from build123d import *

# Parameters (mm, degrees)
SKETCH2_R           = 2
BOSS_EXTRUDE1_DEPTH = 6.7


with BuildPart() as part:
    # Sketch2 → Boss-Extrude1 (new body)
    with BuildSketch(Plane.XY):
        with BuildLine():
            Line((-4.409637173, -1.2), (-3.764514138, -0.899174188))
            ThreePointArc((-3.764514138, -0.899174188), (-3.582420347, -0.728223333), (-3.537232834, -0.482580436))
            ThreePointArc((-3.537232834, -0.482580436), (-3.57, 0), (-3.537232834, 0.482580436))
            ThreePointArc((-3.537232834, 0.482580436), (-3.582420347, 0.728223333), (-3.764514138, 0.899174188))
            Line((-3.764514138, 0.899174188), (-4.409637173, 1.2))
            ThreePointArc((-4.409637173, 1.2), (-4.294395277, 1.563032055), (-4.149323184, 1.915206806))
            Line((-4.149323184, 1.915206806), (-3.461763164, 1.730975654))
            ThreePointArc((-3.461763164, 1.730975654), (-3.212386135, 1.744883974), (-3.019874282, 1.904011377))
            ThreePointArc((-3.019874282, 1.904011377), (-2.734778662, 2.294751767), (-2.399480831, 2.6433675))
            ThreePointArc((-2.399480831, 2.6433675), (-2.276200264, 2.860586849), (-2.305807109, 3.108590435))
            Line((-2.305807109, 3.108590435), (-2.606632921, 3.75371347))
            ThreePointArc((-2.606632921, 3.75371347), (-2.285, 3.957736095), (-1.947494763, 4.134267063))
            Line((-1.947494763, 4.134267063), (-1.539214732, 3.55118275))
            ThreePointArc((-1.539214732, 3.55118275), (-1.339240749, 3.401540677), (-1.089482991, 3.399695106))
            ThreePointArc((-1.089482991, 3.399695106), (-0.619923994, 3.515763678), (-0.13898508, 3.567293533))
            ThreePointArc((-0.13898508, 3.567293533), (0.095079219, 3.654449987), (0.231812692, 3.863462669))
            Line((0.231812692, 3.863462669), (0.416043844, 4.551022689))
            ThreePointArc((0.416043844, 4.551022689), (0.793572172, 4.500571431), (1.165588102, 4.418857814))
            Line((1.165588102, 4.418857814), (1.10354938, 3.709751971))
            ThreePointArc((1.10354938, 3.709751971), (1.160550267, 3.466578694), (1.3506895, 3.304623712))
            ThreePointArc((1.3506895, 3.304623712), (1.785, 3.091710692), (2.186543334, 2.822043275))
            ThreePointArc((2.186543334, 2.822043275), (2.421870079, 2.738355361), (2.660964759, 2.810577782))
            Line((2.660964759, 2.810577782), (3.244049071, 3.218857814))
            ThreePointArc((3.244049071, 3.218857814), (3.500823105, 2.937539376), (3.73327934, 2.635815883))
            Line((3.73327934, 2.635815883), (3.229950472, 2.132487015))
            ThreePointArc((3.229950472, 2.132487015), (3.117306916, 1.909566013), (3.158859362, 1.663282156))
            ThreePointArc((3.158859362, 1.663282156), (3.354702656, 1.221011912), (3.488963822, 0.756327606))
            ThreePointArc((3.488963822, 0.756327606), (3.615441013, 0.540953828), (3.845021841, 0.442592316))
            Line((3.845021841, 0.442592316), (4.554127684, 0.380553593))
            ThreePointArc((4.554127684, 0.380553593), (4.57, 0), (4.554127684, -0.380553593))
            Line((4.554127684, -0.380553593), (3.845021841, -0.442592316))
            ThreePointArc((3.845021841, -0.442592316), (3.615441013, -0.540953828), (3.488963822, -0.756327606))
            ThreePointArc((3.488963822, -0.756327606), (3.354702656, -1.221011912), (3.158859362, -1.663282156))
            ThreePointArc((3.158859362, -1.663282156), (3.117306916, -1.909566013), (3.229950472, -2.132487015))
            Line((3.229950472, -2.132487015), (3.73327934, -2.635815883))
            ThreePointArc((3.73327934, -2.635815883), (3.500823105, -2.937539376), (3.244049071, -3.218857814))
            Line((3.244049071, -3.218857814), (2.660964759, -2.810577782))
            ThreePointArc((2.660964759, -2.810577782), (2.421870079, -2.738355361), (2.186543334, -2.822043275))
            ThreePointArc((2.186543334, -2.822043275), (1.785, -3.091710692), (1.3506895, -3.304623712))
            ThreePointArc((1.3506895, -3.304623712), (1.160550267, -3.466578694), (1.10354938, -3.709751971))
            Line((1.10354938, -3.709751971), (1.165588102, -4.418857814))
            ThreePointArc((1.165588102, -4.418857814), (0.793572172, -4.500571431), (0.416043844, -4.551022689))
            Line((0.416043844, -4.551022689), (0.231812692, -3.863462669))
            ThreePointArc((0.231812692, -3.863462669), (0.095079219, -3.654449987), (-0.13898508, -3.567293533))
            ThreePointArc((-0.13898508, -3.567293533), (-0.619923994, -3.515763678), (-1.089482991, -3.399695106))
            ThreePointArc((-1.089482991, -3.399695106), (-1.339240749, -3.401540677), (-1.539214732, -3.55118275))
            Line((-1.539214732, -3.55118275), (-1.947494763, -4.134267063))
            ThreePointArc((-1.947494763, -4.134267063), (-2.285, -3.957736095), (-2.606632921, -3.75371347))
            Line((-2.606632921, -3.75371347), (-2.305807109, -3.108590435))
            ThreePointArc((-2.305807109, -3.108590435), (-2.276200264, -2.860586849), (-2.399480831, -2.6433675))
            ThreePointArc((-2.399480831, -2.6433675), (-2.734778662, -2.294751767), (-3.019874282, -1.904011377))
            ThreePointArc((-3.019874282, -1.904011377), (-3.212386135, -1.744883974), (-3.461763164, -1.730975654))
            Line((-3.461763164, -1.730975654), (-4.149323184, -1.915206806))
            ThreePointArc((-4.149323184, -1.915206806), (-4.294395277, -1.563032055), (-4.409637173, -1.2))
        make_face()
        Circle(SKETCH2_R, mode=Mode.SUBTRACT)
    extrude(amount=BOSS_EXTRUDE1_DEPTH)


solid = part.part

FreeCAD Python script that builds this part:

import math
import FreeCAD as App
import Part
import Sketcher
Q = App.Units.Quantity

doc = App.newDocument("Part")
body = doc.addObject("PartDesign::Body", "Body")

sketch1 = doc.addObject("Sketcher::SketchObject", "Sketch")
body.addObject(sketch1)
sketch1.AttachmentSupport = (doc.XY_Plane, [""])
sketch1.MapMode = "FlatFace"
sketch1.addGeometry([
    Part.LineSegment(App.Vector(-3.76, -0.9, 0), App.Vector(-4.41, -1.2, 0)),
    Part.ArcOfCircle(Part.Circle(App.Vector(0, 0, 0), App.Vector(0, 0, 1), 4.57), math.radians(-164.78), math.radians(-155.22)),
    Part.LineSegment(App.Vector(-4.15, -1.92, 0), App.Vector(-3.46, -1.73, 0)),
    Part.ArcOfCircle(Part.Circle(App.Vector(-3.36, -2.12, 0), App.Vector(0, 0, 1), 0.4), math.radians(32), math.radians(105)),
    Part.ArcOfCircle(Part.Circle(App.Vector(0, 0, 0), App.Vector(0, 0, 1), 3.57), math.radians(-147.77), math.radians(-132.23)),
    Part.ArcOfCircle(Part.Circle(App.Vector(-2.67, -2.94, 0), App.Vector(0, 0, 1), 0.4), math.radians(-25), math.radians(48)),
    Part.LineSegment(App.Vector(-2.31, -3.11, 0), App.Vector(-2.61, -3.75, 0)),
    Part.ArcOfCircle(Part.Circle(App.Vector(0, 0, 0), App.Vector(0, 0, 1), 4.57), math.radians(-124.78), math.radians(-115.22)),
    Part.LineSegment(App.Vector(-1.95, -4.13, 0), App.Vector(-1.54, -3.55, 0)),
    Part.ArcOfCircle(Part.Circle(App.Vector(-1.21, -3.78, 0), App.Vector(0, 0, 1), 0.4), math.radians(72), math.radians(145)),
    Part.ArcOfCircle(Part.Circle(App.Vector(0, 0, 0), App.Vector(0, 0, 1), 3.57), math.radians(-107.77), math.radians(-92.23)),
    Part.ArcOfCircle(Part.Circle(App.Vector(-0.15, -3.97, 0), App.Vector(0, 0, 1), 0.4), math.radians(15), math.radians(88)),
    Part.LineSegment(App.Vector(0.23, -3.86, 0), App.Vector(0.42, -4.55, 0)),
    Part.ArcOfCircle(Part.Circle(App.Vector(0, 0, 0), App.Vector(0, 0, 1), 4.57), math.radians(-84.78), math.radians(-75.22)),
    Part.LineSegment(App.Vector(1.17, -4.42, 0), App.Vector(1.1, -3.71, 0)),
    Part.ArcOfCircle(Part.Circle(App.Vector(1.5, -3.67, 0), App.Vector(0, 0, 1), 0.4), math.radians(112), math.radians(185)),
    Part.ArcOfCircle(Part.Circle(App.Vector(0, 0, 0), App.Vector(0, 0, 1), 3.57), math.radians(-67.77), math.radians(-52.23)),
    Part.ArcOfCircle(Part.Circle(App.Vector(2.43, -3.14, 0), App.Vector(0, 0, 1), 0.4), math.radians(55), math.radians(128)),
    Part.LineSegment(App.Vector(2.66, -2.81, 0), App.Vector(3.24, -3.22, 0)),
    Part.ArcOfCircle(Part.Circle(App.Vector(0, 0, 0), App.Vector(0, 0, 1), 4.57), math.radians(-44.78), math.radians(-35.22)),
    Part.LineSegment(App.Vector(3.73, -2.64, 0), App.Vector(3.23, -2.13, 0)),
    Part.ArcOfCircle(Part.Circle(App.Vector(3.51, -1.85, 0), App.Vector(0, 0, 1), 0.4), math.radians(152), math.radians(225)),
    Part.ArcOfCircle(Part.Circle(App.Vector(0, 0, 0), App.Vector(0, 0, 1), 3.57), math.radians(-27.77), math.radians(-12.23)),
    Part.ArcOfCircle(Part.Circle(App.Vector(3.88, -0.84, 0), App.Vector(0, 0, 1), 0.4), math.radians(95), math.radians(168)),
    Part.LineSegment(App.Vector(3.85, -0.44, 0), App.Vector(4.55, -0.38, 0)),
    Part.ArcOfCircle(Part.Circle(App.Vector(0, 0, 0), App.Vector(0, 0, 1), 4.57), math.radians(-4.78), math.radians(4.78)),
    Part.LineSegment(App.Vector(4.55, 0.38, 0), App.Vector(3.85, 0.44, 0)),
    Part.ArcOfCircle(Part.Circle(App.Vector(3.88, 0.84, 0), App.Vector(0, 0, 1), 0.4), math.radians(-168), math.radians(-95)),
    Part.ArcOfCircle(Part.Circle(App.Vector(0, 0, 0), App.Vector(0, 0, 1), 3.57), math.radians(12.23), math.radians(27.77)),
    Part.ArcOfCircle(Part.Circle(App.Vector(3.51, 1.85, 0), App.Vector(0, 0, 1), 0.4), math.radians(135), math.radians(208)),
    Part.LineSegment(App.Vector(3.23, 2.13, 0), App.Vector(3.73, 2.64, 0)),
    Part.ArcOfCircle(Part.Circle(App.Vector(0, 0, 0), App.Vector(0, 0, 1), 4.57), math.radians(35.22), math.radians(44.78)),
    Part.LineSegment(App.Vector(3.24, 3.22, 0), App.Vector(2.66, 2.81, 0)),
    Part.ArcOfCircle(Part.Circle(App.Vector(2.43, 3.14, 0), App.Vector(0, 0, 1), 0.4), math.radians(-128), math.radians(-55)),
    Part.ArcOfCircle(Part.Circle(App.Vector(0, 0, 0), App.Vector(0, 0, 1), 3.57), math.radians(52.23), math.radians(67.77)),
    Part.ArcOfCircle(Part.Circle(App.Vector(1.5, 3.67, 0), App.Vector(0, 0, 1), 0.4), math.radians(175), math.radians(248)),
    Part.LineSegment(App.Vector(1.1, 3.71, 0), App.Vector(1.17, 4.42, 0)),
    Part.ArcOfCircle(Part.Circle(App.Vector(0, 0, 0), App.Vector(0, 0, 1), 4.57), math.radians(75.22), math.radians(84.78)),
    Part.LineSegment(App.Vector(0.42, 4.55, 0), App.Vector(0.23, 3.86, 0)),
    Part.ArcOfCircle(Part.Circle(App.Vector(-0.15, 3.97, 0), App.Vector(0, 0, 1), 0.4), math.radians(-88), math.radians(-15)),
    Part.ArcOfCircle(Part.Circle(App.Vector(0, 0, 0), App.Vector(0, 0, 1), 3.57), math.radians(92.23), math.radians(107.77)),
    Part.ArcOfCircle(Part.Circle(App.Vector(-1.21, 3.78, 0), App.Vector(0, 0, 1), 0.4), math.radians(-145), math.radians(-72)),
    Part.LineSegment(App.Vector(-1.54, 3.55, 0), App.Vector(-1.95, 4.13, 0)),
    Part.ArcOfCircle(Part.Circle(App.Vector(0, 0, 0), App.Vector(0, 0, 1), 4.57), math.radians(115.22), math.radians(124.78)),
    Part.LineSegment(App.Vector(-2.61, 3.75, 0), App.Vector(-2.31, 3.11, 0)),
    Part.ArcOfCircle(Part.Circle(App.Vector(-2.67, 2.94, 0), App.Vector(0, 0, 1), 0.4), math.radians(-48), math.radians(25)),
    Part.ArcOfCircle(Part.Circle(App.Vector(0, 0, 0), App.Vector(0, 0, 1), 3.57), math.radians(132.23), math.radians(147.77)),
    Part.ArcOfCircle(Part.Circle(App.Vector(-3.36, 2.12, 0), App.Vector(0, 0, 1), 0.4), math.radians(-105), math.radians(-32)),
    Part.LineSegment(App.Vector(-3.46, 1.73, 0), App.Vector(-4.15, 1.92, 0)),
    Part.ArcOfCircle(Part.Circle(App.Vector(0, 0, 0), App.Vector(0, 0, 1), 4.57), math.radians(155.22), math.radians(164.78)),
    Part.LineSegment(App.Vector(-4.41, 1.2, 0), App.Vector(-3.76, 0.9, 0)),
    Part.ArcOfCircle(Part.Circle(App.Vector(-3.93, 0.54, 0), App.Vector(0, 0, 1), 0.4), math.radians(-8), math.radians(65)),
    Part.ArcOfCircle(Part.Circle(App.Vector(0, 0, 0), App.Vector(0, 0, 1), 3.57), math.radians(172.23), math.radians(187.77)),
    Part.ArcOfCircle(Part.Circle(App.Vector(-3.93, -0.54, 0), App.Vector(0, 0, 1), 0.4), math.radians(-65), math.radians(8)),
    Part.Circle(App.Vector(0, 0, 0), App.Vector(0, 0, 1), 2),
], False)
sketch1.addConstraint([
    Sketcher.Constraint("Coincident", 0, 2, 1, 1),
    Sketcher.Constraint("Coincident", 1, 2, 2, 1),
    Sketcher.Constraint("Tangent", 2, 2, 3, 2),
    Sketcher.Constraint("Tangent", 3, 1, 4, 1),
    Sketcher.Constraint("Tangent", 4, 2, 5, 2),
    Sketcher.Constraint("Tangent", 5, 1, 6, 1),
    Sketcher.Constraint("Coincident", 6, 2, 7, 1),
    Sketcher.Constraint("Coincident", 7, 2, 8, 1),
    Sketcher.Constraint("Tangent", 8, 2, 9, 2),
    Sketcher.Constraint("Tangent", 9, 1, 10, 1),
    Sketcher.Constraint("Tangent", 10, 2, 11, 2),
    Sketcher.Constraint("Tangent", 11, 1, 12, 1),
    Sketcher.Constraint("Coincident", 12, 2, 13, 1),
    Sketcher.Constraint("Coincident", 13, 2, 14, 1),
    Sketcher.Constraint("Tangent", 14, 2, 15, 2),
    Sketcher.Constraint("Tangent", 15, 1, 16, 1),
    Sketcher.Constraint("Tangent", 16, 2, 17, 2),
    Sketcher.Constraint("Tangent", 17, 1, 18, 1),
    Sketcher.Constraint("Coincident", 18, 2, 19, 1),
    Sketcher.Constraint("Coincident", 19, 2, 20, 1),
    Sketcher.Constraint("Tangent", 20, 2, 21, 2),
    Sketcher.Constraint("Tangent", 21, 1, 22, 1),
    Sketcher.Constraint("Tangent", 22, 2, 23, 2),
    Sketcher.Constraint("Tangent", 23, 1, 24, 1),
    Sketcher.Constraint("Coincident", 24, 2, 25, 1),
    Sketcher.Constraint("Coincident", 25, 2, 26, 1),
    Sketcher.Constraint("Tangent", 26, 2, 27, 2),
    Sketcher.Constraint("Tangent", 27, 1, 28, 1),
    Sketcher.Constraint("Tangent", 28, 2, 29, 2),
    Sketcher.Constraint("Tangent", 29, 1, 30, 1),
    Sketcher.Constraint("Coincident", 30, 2, 31, 1),
    Sketcher.Constraint("Coincident", 31, 2, 32, 1),
    Sketcher.Constraint("Tangent", 32, 2, 33, 2),
    Sketcher.Constraint("Tangent", 33, 1, 34, 1),
    Sketcher.Constraint("Tangent", 34, 2, 35, 2),
    Sketcher.Constraint("Tangent", 35, 1, 36, 1),
    Sketcher.Constraint("Coincident", 36, 2, 37, 1),
    Sketcher.Constraint("Coincident", 37, 2, 38, 1),
    Sketcher.Constraint("Tangent", 38, 2, 39, 2),
    Sketcher.Constraint("Tangent", 39, 1, 40, 1),
    Sketcher.Constraint("Tangent", 40, 2, 41, 2),
    Sketcher.Constraint("Tangent", 41, 1, 42, 1),
    Sketcher.Constraint("Coincident", 42, 2, 43, 1),
    Sketcher.Constraint("Coincident", 43, 2, 44, 1),
    Sketcher.Constraint("Tangent", 44, 2, 45, 2),
    Sketcher.Constraint("Tangent", 45, 1, 46, 1),
    Sketcher.Constraint("Tangent", 46, 2, 47, 2),
    Sketcher.Constraint("Tangent", 47, 1, 48, 1),
    Sketcher.Constraint("Coincident", 48, 2, 49, 1),
    Sketcher.Constraint("Coincident", 49, 2, 50, 1),
    Sketcher.Constraint("Tangent", 50, 2, 51, 2),
    Sketcher.Constraint("Tangent", 51, 1, 52, 1),
    Sketcher.Constraint("Tangent", 52, 2, 53, 2),
    Sketcher.Constraint("Tangent", 53, 1, 0, 1),
    Sketcher.Constraint("Coincident", 1, 3, -1, 1),
    Sketcher.Constraint("Coincident", 4, 3, -1, 1),
    Sketcher.Constraint("Coincident", 7, 3, -1, 1),
    Sketcher.Constraint("Coincident", 10, 3, -1, 1),
    Sketcher.Constraint("Coincident", 13, 3, -1, 1),
    Sketcher.Constraint("Coincident", 16, 3, -1, 1),
    Sketcher.Constraint("Coincident", 19, 3, -1, 1),
    Sketcher.Constraint("Coincident", 22, 3, -1, 1),
    Sketcher.Constraint("Coincident", 25, 3, -1, 1),
    Sketcher.Constraint("Coincident", 28, 3, -1, 1),
    Sketcher.Constraint("Coincident", 31, 3, -1, 1),
    Sketcher.Constraint("Coincident", 34, 3, -1, 1),
    Sketcher.Constraint("Coincident", 37, 3, -1, 1),
    Sketcher.Constraint("Coincident", 40, 3, -1, 1),
    Sketcher.Constraint("Coincident", 43, 3, -1, 1),
    Sketcher.Constraint("Coincident", 46, 3, -1, 1),
    Sketcher.Constraint("Coincident", 49, 3, -1, 1),
    Sketcher.Constraint("Coincident", 52, 3, -1, 1),
    Sketcher.Constraint("Coincident", 54, 3, -1, 1),
    Sketcher.Constraint("Equal", 3, 5),
    Sketcher.Constraint("Equal", 1, 7),
    Sketcher.Constraint("Equal", 5, 9),
    Sketcher.Constraint("Equal", 4, 10),
    Sketcher.Constraint("Equal", 9, 11),
    Sketcher.Constraint("Equal", 7, 13),
    Sketcher.Constraint("Equal", 11, 15),
    Sketcher.Constraint("Equal", 10, 16),
    Sketcher.Constraint("Equal", 15, 17),
    Sketcher.Constraint("Equal", 13, 19),
    Sketcher.Constraint("Equal", 17, 21),
    Sketcher.Constraint("Equal", 16, 22),
    Sketcher.Constraint("Equal", 21, 23),
    Sketcher.Constraint("Equal", 19, 25),
    Sketcher.Constraint("Equal", 23, 27),
    Sketcher.Constraint("Equal", 22, 28),
    Sketcher.Constraint("Equal", 27, 29),
    Sketcher.Constraint("Equal", 25, 31),
    Sketcher.Constraint("Equal", 29, 33),
    Sketcher.Constraint("Equal", 28, 34),
    Sketcher.Constraint("Equal", 33, 35),
    Sketcher.Constraint("Equal", 31, 37),
    Sketcher.Constraint("Equal", 35, 39),
    Sketcher.Constraint("Equal", 34, 40),
    Sketcher.Constraint("Equal", 39, 41),
    Sketcher.Constraint("Equal", 37, 43),
    Sketcher.Constraint("Equal", 41, 45),
    Sketcher.Constraint("Equal", 40, 46),
    Sketcher.Constraint("Equal", 45, 47),
    Sketcher.Constraint("Equal", 43, 49),
    Sketcher.Constraint("Equal", 47, 51),
    Sketcher.Constraint("Equal", 46, 52),
    Sketcher.Constraint("Equal", 51, 53),
    Sketcher.Constraint("Symmetric", 23, 1, 26, 2, -1),
    Sketcher.Constraint("Symmetric", 20, 2, 29, 1, -1),
    Sketcher.Constraint("Symmetric", 17, 1, 32, 2, -1),
    Sketcher.Constraint("Symmetric", 14, 2, 35, 1, -1),
    Sketcher.Constraint("Symmetric", 11, 1, 38, 2, -1),
    Sketcher.Constraint("Symmetric", 8, 2, 41, 1, -1),
    Sketcher.Constraint("Symmetric", 5, 1, 44, 2, -1),
    Sketcher.Constraint("Symmetric", 2, 2, 47, 1, -1),
    Sketcher.Constraint("Symmetric", 50, 2, 53, 1, -1),
    Sketcher.Constraint("Perpendicular", 2, 12),
    Sketcher.Constraint("Perpendicular", 8, 18),
    Sketcher.Constraint("Perpendicular", 14, 24),
    Sketcher.Constraint("Perpendicular", 20, 30),
    Sketcher.Constraint("Perpendicular", 0, 44),
    Sketcher.Constraint("Equal", 0, 2),
    Sketcher.Constraint("Equal", 2, 6),
    Sketcher.Constraint("Equal", 6, 8),
    Sketcher.Constraint("Equal", 8, 12),
    Sketcher.Constraint("Equal", 12, 14),
    Sketcher.Constraint("Equal", 14, 18),
    Sketcher.Constraint("Equal", 18, 20),
    Sketcher.Constraint("Equal", 20, 24),
    Sketcher.Constraint("Diameter", 54, 4.0),
    Sketcher.Constraint("Radius", 3, 0.4),
    Sketcher.Constraint("Angle", 0, Q("-155 deg")),
    Sketcher.Constraint("Angle", 2, Q("15 deg")),
    Sketcher.Constraint("Angle", 8, Q("55 deg")),
    Sketcher.Constraint("Angle", 14, Q("95 deg")),
    Sketcher.Constraint("Radius", 1, 4.57),
    Sketcher.Constraint("Radius", 4, 3.57),
    Sketcher.Constraint("DistanceY", 0, 2, -1, 1, 1.2),
])
pad1 = doc.addObject("PartDesign::Pad", "Pad")
body.addObject(pad1)
pad1.Profile = sketch1
pad1.Length = 6.7

doc.recompute()
